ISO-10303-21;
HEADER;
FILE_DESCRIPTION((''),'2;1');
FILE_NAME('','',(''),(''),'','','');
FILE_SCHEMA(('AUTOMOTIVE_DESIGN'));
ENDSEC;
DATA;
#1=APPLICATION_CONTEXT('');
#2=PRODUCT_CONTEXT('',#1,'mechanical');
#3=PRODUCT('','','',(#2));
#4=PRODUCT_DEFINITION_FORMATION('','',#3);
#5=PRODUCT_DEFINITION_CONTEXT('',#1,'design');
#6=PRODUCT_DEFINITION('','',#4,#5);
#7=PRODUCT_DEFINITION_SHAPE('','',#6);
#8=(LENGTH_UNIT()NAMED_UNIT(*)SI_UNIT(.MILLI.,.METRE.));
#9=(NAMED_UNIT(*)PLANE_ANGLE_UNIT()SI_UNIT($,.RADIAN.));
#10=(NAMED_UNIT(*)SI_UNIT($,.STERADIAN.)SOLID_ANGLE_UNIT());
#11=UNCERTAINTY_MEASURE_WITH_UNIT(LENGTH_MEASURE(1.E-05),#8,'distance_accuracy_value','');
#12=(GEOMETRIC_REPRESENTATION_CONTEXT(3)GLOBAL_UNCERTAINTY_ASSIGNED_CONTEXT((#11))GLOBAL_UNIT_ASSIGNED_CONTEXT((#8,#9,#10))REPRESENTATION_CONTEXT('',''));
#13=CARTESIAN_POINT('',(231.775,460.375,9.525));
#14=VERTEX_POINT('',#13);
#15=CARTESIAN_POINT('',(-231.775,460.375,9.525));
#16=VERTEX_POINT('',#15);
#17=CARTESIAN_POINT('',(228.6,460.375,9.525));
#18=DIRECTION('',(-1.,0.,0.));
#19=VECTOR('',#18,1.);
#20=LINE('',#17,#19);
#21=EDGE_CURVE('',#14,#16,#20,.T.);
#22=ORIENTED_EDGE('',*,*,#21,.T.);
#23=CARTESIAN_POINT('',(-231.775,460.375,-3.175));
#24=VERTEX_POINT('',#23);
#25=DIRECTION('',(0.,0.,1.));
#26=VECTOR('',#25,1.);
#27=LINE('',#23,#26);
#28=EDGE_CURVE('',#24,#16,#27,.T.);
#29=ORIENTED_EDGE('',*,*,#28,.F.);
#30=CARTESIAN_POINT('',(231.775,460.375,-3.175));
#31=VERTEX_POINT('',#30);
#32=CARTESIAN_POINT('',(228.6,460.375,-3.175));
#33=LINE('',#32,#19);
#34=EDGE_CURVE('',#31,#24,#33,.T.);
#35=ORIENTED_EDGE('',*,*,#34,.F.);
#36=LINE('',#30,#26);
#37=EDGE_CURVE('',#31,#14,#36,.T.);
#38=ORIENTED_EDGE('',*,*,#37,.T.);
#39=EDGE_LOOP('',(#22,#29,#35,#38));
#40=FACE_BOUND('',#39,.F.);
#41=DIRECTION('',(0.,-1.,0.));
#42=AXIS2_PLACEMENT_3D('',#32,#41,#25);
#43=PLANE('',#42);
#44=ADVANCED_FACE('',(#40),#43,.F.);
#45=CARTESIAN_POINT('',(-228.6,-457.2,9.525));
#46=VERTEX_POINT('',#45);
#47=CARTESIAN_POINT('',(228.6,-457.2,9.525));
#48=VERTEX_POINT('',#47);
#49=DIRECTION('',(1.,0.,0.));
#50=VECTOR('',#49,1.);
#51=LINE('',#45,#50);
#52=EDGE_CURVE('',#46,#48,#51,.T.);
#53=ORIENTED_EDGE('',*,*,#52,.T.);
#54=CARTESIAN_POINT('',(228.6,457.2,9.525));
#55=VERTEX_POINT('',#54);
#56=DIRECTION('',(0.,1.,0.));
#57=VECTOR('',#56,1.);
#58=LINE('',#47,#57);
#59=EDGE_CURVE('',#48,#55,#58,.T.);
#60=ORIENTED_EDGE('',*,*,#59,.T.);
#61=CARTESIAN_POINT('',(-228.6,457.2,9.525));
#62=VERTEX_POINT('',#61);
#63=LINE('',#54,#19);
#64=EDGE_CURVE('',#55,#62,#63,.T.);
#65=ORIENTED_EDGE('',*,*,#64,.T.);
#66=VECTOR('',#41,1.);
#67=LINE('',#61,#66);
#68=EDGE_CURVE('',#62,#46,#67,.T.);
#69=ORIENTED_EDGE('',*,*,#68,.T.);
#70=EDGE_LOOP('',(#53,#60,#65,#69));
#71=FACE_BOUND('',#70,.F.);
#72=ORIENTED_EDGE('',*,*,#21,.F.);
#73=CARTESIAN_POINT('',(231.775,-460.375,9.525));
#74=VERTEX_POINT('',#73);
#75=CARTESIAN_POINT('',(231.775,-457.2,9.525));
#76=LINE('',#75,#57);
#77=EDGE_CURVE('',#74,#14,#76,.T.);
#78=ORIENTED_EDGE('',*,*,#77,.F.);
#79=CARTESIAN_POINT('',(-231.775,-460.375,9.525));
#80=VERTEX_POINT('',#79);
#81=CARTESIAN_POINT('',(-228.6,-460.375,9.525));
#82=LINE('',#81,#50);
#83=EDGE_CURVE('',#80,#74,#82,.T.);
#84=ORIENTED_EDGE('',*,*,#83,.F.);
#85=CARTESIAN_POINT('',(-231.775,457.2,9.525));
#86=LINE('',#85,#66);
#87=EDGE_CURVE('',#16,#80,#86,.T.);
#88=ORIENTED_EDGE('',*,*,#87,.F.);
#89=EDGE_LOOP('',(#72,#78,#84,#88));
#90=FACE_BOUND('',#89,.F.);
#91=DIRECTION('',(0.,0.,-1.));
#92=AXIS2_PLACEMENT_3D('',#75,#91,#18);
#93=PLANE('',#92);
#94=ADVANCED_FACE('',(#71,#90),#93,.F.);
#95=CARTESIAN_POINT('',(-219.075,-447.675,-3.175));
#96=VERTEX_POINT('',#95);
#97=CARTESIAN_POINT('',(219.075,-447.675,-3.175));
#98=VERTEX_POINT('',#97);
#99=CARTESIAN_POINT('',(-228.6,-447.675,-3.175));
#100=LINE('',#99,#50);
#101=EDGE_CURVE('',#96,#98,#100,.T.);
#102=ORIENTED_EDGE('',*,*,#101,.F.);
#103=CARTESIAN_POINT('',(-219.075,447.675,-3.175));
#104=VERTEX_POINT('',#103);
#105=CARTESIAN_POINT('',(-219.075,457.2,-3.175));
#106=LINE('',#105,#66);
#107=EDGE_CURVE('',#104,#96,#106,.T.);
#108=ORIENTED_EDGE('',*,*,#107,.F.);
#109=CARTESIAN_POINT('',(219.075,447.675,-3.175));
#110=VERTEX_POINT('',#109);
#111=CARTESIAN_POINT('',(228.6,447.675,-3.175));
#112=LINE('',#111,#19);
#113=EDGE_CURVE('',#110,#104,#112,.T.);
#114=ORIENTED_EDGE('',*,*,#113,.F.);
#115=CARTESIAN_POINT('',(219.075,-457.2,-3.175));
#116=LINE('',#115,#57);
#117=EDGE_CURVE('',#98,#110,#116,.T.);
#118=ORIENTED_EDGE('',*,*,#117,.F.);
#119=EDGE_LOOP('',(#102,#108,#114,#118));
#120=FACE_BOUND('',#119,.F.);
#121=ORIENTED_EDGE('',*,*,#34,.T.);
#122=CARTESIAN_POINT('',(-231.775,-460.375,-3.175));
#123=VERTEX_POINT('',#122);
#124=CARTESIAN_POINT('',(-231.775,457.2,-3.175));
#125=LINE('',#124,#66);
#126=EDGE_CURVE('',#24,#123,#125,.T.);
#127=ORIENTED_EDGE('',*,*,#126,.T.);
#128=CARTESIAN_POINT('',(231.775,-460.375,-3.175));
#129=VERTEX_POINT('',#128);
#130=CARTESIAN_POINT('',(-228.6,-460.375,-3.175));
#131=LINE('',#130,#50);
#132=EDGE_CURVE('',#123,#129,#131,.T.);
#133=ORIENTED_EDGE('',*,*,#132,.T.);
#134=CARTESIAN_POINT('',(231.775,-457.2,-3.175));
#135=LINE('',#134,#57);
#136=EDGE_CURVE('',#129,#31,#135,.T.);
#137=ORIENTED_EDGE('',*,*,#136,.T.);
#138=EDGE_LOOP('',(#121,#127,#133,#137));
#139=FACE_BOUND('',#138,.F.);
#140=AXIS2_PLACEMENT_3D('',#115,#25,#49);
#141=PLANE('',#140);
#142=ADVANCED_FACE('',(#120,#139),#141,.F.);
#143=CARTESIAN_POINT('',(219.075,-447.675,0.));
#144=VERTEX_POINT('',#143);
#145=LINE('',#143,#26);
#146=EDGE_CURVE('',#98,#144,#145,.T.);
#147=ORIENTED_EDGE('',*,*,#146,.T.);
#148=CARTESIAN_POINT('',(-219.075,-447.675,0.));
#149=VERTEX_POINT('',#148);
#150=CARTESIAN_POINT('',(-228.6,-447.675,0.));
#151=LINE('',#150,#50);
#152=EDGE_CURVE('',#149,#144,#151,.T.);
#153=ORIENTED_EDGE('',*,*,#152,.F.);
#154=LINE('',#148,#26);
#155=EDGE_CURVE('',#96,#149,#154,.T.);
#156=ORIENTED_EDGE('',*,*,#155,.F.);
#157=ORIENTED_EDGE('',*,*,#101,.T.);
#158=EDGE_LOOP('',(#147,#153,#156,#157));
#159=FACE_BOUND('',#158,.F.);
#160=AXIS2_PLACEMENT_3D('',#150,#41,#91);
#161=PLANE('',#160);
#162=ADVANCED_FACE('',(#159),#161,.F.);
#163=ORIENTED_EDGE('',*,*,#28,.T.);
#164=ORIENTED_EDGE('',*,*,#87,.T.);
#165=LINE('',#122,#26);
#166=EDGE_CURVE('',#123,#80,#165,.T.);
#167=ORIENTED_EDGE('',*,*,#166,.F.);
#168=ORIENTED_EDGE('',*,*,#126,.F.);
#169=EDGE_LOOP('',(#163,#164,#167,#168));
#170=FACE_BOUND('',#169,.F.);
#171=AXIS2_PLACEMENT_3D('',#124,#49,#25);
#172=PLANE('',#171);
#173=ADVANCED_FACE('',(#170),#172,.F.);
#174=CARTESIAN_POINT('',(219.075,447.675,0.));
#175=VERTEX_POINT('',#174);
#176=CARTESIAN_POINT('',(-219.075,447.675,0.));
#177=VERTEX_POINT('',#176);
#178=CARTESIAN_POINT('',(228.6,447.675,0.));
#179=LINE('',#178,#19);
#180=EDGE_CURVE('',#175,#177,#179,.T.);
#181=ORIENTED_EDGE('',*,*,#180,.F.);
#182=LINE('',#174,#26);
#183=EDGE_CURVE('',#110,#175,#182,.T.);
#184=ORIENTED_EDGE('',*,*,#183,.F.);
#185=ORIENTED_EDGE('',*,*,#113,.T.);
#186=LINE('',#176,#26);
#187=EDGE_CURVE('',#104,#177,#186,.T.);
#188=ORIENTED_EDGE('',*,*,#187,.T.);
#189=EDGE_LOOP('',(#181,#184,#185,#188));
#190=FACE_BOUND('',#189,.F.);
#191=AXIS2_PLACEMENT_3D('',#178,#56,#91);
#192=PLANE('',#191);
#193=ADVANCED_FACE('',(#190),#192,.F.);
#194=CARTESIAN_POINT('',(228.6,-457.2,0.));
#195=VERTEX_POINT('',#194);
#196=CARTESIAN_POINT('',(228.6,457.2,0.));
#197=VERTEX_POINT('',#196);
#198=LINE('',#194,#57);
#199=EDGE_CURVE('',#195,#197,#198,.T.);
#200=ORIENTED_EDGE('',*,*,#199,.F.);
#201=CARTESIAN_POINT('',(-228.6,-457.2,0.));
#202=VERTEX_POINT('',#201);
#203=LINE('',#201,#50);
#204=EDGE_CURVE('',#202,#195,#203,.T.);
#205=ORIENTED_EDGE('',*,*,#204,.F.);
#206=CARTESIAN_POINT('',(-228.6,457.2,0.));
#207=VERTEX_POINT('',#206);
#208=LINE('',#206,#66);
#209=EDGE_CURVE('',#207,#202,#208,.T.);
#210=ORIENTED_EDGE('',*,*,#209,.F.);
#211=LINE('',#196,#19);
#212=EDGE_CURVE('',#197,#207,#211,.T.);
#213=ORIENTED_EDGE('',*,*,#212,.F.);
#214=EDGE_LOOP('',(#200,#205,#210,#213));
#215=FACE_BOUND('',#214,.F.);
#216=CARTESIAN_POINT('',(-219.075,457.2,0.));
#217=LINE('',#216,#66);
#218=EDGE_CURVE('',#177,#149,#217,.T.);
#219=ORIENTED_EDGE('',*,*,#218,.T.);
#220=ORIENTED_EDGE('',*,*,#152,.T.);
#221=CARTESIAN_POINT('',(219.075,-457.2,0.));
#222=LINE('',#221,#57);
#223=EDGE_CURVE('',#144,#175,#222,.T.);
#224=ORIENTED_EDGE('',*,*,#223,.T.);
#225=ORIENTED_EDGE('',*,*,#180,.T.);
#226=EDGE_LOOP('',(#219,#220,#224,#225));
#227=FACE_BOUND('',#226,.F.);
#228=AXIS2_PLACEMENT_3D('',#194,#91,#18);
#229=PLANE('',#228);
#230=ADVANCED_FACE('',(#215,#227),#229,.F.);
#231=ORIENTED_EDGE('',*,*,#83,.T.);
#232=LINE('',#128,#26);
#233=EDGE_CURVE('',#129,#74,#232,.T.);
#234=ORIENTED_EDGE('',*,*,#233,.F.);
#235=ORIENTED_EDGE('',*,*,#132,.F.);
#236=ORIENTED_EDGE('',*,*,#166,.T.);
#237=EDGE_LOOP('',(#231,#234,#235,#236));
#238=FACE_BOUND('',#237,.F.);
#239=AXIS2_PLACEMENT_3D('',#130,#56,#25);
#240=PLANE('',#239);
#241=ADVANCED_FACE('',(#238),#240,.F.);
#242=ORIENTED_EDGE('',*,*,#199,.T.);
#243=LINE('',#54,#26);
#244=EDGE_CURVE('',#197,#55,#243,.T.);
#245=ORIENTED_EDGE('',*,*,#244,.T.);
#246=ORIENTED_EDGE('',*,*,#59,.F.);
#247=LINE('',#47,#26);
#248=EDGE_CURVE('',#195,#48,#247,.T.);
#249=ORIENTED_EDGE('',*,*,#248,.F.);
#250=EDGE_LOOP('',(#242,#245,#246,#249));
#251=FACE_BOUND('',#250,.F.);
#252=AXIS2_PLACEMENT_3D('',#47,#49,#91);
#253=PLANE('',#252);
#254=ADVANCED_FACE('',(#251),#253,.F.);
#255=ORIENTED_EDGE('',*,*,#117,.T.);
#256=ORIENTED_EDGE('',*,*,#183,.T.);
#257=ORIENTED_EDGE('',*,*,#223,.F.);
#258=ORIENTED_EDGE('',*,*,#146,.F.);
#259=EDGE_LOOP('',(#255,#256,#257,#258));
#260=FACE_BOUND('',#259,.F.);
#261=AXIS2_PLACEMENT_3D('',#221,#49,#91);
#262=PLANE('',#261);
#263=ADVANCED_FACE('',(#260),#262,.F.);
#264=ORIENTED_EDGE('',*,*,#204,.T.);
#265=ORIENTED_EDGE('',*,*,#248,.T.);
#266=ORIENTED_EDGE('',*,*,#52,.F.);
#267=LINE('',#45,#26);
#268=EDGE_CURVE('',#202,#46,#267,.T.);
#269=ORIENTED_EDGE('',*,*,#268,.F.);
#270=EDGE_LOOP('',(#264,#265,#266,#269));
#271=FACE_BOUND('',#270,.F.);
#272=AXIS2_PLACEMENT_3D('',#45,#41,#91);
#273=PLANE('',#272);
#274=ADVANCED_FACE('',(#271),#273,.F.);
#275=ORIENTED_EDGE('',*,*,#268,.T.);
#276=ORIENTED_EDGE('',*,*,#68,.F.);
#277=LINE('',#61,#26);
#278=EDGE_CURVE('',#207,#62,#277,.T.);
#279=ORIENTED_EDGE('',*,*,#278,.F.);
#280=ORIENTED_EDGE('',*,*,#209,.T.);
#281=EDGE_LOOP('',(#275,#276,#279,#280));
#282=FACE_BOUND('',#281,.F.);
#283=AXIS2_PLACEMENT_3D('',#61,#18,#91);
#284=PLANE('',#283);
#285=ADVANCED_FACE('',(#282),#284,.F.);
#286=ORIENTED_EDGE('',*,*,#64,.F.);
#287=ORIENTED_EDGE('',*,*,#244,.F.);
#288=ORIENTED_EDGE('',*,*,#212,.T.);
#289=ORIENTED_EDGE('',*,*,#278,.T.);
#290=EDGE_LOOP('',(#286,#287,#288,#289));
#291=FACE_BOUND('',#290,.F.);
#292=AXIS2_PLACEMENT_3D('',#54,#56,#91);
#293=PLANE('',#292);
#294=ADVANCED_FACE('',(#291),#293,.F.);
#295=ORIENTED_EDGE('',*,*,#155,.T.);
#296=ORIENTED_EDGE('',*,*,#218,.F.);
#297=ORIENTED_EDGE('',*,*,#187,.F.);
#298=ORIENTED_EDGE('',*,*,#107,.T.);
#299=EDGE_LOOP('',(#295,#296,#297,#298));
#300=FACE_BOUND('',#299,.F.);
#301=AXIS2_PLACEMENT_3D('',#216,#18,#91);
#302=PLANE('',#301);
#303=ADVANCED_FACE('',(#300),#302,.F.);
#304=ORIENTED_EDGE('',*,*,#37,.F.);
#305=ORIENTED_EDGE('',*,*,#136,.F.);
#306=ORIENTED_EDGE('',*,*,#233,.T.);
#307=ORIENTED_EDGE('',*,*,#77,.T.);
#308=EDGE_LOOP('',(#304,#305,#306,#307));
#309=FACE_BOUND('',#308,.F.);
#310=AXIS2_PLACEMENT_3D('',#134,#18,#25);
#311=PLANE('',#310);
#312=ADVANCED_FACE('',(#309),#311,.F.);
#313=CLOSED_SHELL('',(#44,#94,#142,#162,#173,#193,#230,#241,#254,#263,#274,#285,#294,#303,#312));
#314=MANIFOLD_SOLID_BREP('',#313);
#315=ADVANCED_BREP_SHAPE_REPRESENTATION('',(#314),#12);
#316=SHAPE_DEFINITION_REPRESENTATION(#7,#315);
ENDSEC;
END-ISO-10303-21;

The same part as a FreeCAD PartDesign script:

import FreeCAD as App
import Part
import Sketcher
Q = App.Units.Quantity

doc = App.newDocument("Part")
body = doc.addObject("PartDesign::Body", "Body")

# Sketch on XZ plane
sketch1 = body.newObject("Sketcher::SketchObject", "Sketch")
sketch1.AttachmentSupport = (doc.getObject("XZ_Plane"), [""])
sketch1.MapMode = "FlatFace"
sketch1.addGeometry([
    Part.LineSegment(App.Vector(231.8, -3.2, 0), App.Vector(231.8, 9.5, 0)),  # 0
    Part.LineSegment(App.Vector(231.8, 9.5, 0), App.Vector(228.6, 9.5, 0)),  # 1
    Part.LineSegment(App.Vector(228.6, 9.5, 0), App.Vector(228.6, 0, 0)),  # 2
    Part.LineSegment(App.Vector(228.6, 0, 0), App.Vector(219.1, 0, 0)),  # 3
    Part.LineSegment(App.Vector(219.1, 0, 0), App.Vector(219.1, -3.2, 0)),  # 4
    Part.LineSegment(App.Vector(219.1, -3.2, 0), App.Vector(231.8, -3.2, 0)),  # 5
], False)
sketch1.addConstraint([
    Sketcher.Constraint("Coincident", 0, 2, 1, 1),
    Sketcher.Constraint("Coincident", 1, 2, 2, 1),
    Sketcher.Constraint("Coincident", 2, 2, 3, 1),
    Sketcher.Constraint("Coincident", 3, 2, 4, 1),
    Sketcher.Constraint("Coincident", 4, 2, 5, 1),
    Sketcher.Constraint("Coincident", 5, 2, 0, 1),
    Sketcher.Constraint("Vertical", 0),
    Sketcher.Constraint("Horizontal", 1),
    Sketcher.Constraint("Vertical", 2),
    Sketcher.Constraint("Horizontal", 3),
    Sketcher.Constraint("Vertical", 4),
    Sketcher.Constraint("Horizontal", 5),
    Sketcher.Constraint("PointOnObject", 2, 2, -1),
    Sketcher.Constraint("Equal", 5, 0),
    Sketcher.Constraint("Equal", 3, 2),
    Sketcher.Constraint("DistanceX", 5, 1, 5, 2, Q("0.5 in")),
    Sketcher.Constraint("DistanceX", -1, 1, 1, 2, Q("9 in")),
    Sketcher.Constraint("DistanceX", 1, 2, 1, 1, Q("0.125 in")),
])

# Sketch on XY plane
sketch2 = body.newObject("Sketcher::SketchObject", "Sketch001")
sketch2.AttachmentSupport = (doc.getObject("XY_Plane"), [""])
sketch2.MapMode = "FlatFace"
sketch2.addGeometry([
    Part.LineSegment(App.Vector(229, -457, 0), App.Vector(229, 457, 0)),
    Part.LineSegment(App.Vector(229, 457, 0), App.Vector(-229, 457, 0)),
    Part.LineSegment(App.Vector(-229, 457, 0), App.Vector(-229, -457, 0)),
    Part.LineSegment(App.Vector(-229, -457, 0), App.Vector(229, -457, 0)),
], False)
sketch2.addConstraint([
    Sketcher.Constraint("Coincident", 0, 2, 1, 1),
    Sketcher.Constraint("Coincident", 1, 2, 2, 1),
    Sketcher.Constraint("Coincident", 2, 2, 3, 1),
    Sketcher.Constraint("Coincident", 3, 2, 0, 1),
    Sketcher.Constraint("Vertical", 0),
    Sketcher.Constraint("Horizontal", 1),
    Sketcher.Constraint("Vertical", 2),
    Sketcher.Constraint("Horizontal", 3),
    Sketcher.Constraint("Symmetric", 0, 2, 2, 2, -1, 1),
    Sketcher.Constraint("DistanceX", 1, 2, 1, 1, Q("18 in")),
    Sketcher.Constraint("DistanceY", 0, 1, 0, 2, Q("36 in")),
])
doc.recompute()

additivepipe = body.newObject("PartDesign::AdditivePipe", "AdditivePipe")
additivepipe.Profile = sketch1
additivepipe.Spine = (sketch2, ["Edge1", "Edge2", "Edge3", "Edge4"])
additivepipe.Transition = "Right corner"

doc.recompute()
